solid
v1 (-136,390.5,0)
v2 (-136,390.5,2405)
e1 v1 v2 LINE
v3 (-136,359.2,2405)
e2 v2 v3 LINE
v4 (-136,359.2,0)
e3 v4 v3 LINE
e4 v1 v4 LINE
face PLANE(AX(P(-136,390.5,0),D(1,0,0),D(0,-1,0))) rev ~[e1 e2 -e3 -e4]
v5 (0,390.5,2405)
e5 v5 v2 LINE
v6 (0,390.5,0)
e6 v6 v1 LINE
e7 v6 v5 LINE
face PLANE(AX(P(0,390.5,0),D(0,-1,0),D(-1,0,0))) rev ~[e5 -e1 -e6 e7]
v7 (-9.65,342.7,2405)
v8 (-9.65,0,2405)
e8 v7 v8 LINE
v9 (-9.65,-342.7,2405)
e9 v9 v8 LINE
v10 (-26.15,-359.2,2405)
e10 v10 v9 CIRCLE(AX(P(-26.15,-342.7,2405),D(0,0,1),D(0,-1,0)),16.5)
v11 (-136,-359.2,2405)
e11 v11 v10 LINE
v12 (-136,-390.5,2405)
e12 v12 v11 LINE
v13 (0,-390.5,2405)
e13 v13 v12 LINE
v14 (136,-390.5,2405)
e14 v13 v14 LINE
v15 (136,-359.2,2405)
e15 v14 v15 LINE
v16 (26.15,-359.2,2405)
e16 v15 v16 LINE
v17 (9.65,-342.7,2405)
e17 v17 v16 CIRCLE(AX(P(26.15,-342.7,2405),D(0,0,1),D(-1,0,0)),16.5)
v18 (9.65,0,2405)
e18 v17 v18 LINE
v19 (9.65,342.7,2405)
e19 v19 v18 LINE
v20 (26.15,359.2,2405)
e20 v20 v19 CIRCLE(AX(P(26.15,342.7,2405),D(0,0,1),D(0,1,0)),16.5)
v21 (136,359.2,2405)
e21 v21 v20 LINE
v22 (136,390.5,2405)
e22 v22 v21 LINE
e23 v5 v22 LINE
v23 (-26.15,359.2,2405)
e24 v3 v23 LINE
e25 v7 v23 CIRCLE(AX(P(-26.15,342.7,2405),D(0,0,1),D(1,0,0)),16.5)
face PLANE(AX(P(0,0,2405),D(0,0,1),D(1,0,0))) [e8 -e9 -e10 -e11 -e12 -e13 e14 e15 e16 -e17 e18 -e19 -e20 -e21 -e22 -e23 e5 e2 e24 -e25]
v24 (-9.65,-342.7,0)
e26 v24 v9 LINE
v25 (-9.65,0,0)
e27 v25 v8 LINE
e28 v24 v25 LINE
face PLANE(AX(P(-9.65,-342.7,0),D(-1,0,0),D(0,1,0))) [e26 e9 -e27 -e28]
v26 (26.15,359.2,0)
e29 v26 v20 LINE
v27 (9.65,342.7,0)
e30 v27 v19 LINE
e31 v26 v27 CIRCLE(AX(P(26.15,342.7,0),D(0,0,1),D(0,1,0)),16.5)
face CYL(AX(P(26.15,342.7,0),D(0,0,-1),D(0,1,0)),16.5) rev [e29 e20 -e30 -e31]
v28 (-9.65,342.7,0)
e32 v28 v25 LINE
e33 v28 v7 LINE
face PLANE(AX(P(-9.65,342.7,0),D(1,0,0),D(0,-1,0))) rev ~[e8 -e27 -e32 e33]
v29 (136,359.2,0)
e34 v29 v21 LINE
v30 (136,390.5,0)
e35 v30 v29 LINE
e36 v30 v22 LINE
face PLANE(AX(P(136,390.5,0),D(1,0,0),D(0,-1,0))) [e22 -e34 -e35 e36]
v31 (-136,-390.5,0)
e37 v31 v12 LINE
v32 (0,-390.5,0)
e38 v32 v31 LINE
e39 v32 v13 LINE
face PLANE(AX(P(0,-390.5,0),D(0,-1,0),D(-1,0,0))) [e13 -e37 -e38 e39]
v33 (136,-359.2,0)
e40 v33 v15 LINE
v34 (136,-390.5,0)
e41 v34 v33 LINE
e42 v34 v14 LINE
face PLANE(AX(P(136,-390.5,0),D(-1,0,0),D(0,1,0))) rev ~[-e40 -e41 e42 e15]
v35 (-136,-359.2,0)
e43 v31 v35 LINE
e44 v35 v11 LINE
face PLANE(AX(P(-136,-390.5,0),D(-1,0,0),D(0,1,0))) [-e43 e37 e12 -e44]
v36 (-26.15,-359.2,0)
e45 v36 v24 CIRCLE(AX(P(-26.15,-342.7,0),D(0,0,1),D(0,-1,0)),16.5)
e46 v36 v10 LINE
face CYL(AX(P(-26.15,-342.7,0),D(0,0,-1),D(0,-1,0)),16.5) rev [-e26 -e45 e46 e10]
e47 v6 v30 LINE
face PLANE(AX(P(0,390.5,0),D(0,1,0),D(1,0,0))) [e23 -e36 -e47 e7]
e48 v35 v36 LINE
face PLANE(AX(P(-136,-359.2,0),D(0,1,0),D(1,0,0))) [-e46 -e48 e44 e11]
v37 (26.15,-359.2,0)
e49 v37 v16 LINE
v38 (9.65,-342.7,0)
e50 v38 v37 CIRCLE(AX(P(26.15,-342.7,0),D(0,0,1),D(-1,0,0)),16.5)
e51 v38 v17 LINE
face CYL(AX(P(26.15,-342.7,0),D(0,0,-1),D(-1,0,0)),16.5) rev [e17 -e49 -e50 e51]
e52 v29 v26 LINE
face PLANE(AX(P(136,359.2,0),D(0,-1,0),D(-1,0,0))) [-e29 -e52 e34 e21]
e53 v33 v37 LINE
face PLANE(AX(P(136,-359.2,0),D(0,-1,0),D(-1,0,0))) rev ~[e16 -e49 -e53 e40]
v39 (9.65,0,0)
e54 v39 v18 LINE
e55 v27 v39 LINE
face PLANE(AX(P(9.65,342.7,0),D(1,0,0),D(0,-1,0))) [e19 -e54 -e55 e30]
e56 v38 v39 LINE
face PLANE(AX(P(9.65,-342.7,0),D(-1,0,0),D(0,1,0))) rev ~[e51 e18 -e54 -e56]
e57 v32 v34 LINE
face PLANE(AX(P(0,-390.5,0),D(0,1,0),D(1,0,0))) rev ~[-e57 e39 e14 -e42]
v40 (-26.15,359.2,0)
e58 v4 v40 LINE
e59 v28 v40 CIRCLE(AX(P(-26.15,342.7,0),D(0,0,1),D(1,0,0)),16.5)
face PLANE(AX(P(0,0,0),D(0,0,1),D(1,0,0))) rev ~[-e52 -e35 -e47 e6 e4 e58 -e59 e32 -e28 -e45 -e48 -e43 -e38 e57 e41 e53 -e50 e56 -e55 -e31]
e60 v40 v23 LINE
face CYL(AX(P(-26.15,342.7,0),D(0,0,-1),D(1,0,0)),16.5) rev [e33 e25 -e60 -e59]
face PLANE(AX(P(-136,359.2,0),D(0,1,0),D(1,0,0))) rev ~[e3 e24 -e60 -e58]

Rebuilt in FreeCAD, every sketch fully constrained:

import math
import FreeCAD as App
import Part
import Sketcher

V = App.Vector
Q = App.Units.Quantity

doc = App.newDocument("Part")
body = doc.addObject("PartDesign::Body", "Body")

sketch1 = body.newObject("Sketcher::SketchObject", "Sketch")
sketch1.AttachmentSupport = (doc.getObject("XY_Plane"), [""])
sketch1.MapMode = "FlatFace"
sketch1.addGeometry([
    Part.LineSegment(V(-136, -359, 0), V(-136, -390, 0)),
    Part.LineSegment(V(-136, -390, 0), V(136, -390, 0)),
    Part.LineSegment(V(136, -390, 0), V(136, -359, 0)),
    Part.LineSegment(V(136, -359, 0), V(26, -359, 0)),
    Part.ArcOfCircle(Part.Circle(V(26, -343, 0), V(0, 0, 1), 16), math.radians(180), math.radians(270)),
    Part.LineSegment(V(10, -343, 0), V(10, 343, 0)),
    Part.ArcOfCircle(Part.Circle(V(26, 343, 0), V(0, 0, 1), 16), math.radians(90), math.radians(180)),
    Part.LineSegment(V(26, 359, 0), V(136, 359, 0)),
    Part.LineSegment(V(136, 359, 0), V(136, 390, 0)),
    Part.LineSegment(V(136, 390, 0), V(-136, 390, 0)),
    Part.LineSegment(V(-136, 390, 0), V(-136, 359, 0)),
    Part.LineSegment(V(-136, 359, 0), V(-26, 359, 0)),
    Part.ArcOfCircle(Part.Circle(V(-26, 343, 0), V(0, 0, 1), 16), math.radians(0), math.radians(90)),
    Part.LineSegment(V(-10, 343, 0), V(-10, -343, 0)),
    Part.ArcOfCircle(Part.Circle(V(-26, -343, 0), V(0, 0, 1), 16), math.radians(-90), math.radians(0)),
    Part.LineSegment(V(-26, -359, 0), V(-136, -359, 0)),
], False)
sketch1.addConstraint([
    Sketcher.Constraint("Coincident", 0, 2, 1, 1),
    Sketcher.Constraint("Coincident", 1, 2, 2, 1),
    Sketcher.Constraint("Coincident", 2, 2, 3, 1),
    Sketcher.Constraint("Tangent", 3, 2, 4, 2),
    Sketcher.Constraint("Tangent", 4, 1, 5, 1),
    Sketcher.Constraint("Tangent", 5, 2, 6, 2),
    Sketcher.Constraint("Tangent", 6, 1, 7, 1),
    Sketcher.Constraint("Coincident", 7, 2, 8, 1),
    Sketcher.Constraint("Coincident", 8, 2, 9, 1),
    Sketcher.Constraint("Coincident", 9, 2, 10, 1),
    Sketcher.Constraint("Coincident", 10, 2, 11, 1),
    Sketcher.Constraint("Tangent", 11, 2, 12, 2),
    Sketcher.Constraint("Tangent", 12, 1, 13, 1),
    Sketcher.Constraint("Tangent", 13, 2, 14, 2),
    Sketcher.Constraint("Tangent", 14, 1, 15, 1),
    Sketcher.Constraint("Coincident", 15, 2, 0, 1),
    Sketcher.Constraint("Vertical", 0),
    Sketcher.Constraint("Horizontal", 1),
    Sketcher.Constraint("Vertical", 2),
    Sketcher.Constraint("Horizontal", 3),
    Sketcher.Constraint("Vertical", 5),
    Sketcher.Constraint("Horizontal", 7),
    Sketcher.Constraint("Vertical", 8),
    Sketcher.Constraint("Horizontal", 9),
    Sketcher.Constraint("Vertical", 10),
    Sketcher.Constraint("Horizontal", 11),
    Sketcher.Constraint("Vertical", 13),
    Sketcher.Constraint("Horizontal", 15),
    Sketcher.Constraint("Equal", 4, 6),
    Sketcher.Constraint("Equal", 6, 12),
    Sketcher.Constraint("Equal", 12, 14),
    Sketcher.Constraint("Symmetric", 4, 3, 12, 3, -1, 1),
    Sketcher.Constraint("Symmetric", 0, 2, 8, 2, -1, 1),
    Sketcher.Constraint("Symmetric", 7, 2, 10, 2, -2),
    Sketcher.Constraint("Symmetric", 2, 2, 15, 2, -2),
    Sketcher.Constraint("Radius", 4, Q("16.5 mm")),
    Sketcher.Constraint("DistanceY", 0, 2, 0, 1, Q("31.3 mm")),
    Sketcher.Constraint("DistanceX", 0, 2, -1, 1, Q("136 mm")),
    Sketcher.Constraint("DistanceY", 0, 2, -1, 1, Q("390.5 mm")),
    Sketcher.Constraint("DistanceX", -1, 1, 4, 1, Q("9.65 mm")),
])
pad1 = body.newObject("PartDesign::Pad", "Pad")
pad1.Profile = sketch1
pad1.Length = 2405

doc.recompute()
